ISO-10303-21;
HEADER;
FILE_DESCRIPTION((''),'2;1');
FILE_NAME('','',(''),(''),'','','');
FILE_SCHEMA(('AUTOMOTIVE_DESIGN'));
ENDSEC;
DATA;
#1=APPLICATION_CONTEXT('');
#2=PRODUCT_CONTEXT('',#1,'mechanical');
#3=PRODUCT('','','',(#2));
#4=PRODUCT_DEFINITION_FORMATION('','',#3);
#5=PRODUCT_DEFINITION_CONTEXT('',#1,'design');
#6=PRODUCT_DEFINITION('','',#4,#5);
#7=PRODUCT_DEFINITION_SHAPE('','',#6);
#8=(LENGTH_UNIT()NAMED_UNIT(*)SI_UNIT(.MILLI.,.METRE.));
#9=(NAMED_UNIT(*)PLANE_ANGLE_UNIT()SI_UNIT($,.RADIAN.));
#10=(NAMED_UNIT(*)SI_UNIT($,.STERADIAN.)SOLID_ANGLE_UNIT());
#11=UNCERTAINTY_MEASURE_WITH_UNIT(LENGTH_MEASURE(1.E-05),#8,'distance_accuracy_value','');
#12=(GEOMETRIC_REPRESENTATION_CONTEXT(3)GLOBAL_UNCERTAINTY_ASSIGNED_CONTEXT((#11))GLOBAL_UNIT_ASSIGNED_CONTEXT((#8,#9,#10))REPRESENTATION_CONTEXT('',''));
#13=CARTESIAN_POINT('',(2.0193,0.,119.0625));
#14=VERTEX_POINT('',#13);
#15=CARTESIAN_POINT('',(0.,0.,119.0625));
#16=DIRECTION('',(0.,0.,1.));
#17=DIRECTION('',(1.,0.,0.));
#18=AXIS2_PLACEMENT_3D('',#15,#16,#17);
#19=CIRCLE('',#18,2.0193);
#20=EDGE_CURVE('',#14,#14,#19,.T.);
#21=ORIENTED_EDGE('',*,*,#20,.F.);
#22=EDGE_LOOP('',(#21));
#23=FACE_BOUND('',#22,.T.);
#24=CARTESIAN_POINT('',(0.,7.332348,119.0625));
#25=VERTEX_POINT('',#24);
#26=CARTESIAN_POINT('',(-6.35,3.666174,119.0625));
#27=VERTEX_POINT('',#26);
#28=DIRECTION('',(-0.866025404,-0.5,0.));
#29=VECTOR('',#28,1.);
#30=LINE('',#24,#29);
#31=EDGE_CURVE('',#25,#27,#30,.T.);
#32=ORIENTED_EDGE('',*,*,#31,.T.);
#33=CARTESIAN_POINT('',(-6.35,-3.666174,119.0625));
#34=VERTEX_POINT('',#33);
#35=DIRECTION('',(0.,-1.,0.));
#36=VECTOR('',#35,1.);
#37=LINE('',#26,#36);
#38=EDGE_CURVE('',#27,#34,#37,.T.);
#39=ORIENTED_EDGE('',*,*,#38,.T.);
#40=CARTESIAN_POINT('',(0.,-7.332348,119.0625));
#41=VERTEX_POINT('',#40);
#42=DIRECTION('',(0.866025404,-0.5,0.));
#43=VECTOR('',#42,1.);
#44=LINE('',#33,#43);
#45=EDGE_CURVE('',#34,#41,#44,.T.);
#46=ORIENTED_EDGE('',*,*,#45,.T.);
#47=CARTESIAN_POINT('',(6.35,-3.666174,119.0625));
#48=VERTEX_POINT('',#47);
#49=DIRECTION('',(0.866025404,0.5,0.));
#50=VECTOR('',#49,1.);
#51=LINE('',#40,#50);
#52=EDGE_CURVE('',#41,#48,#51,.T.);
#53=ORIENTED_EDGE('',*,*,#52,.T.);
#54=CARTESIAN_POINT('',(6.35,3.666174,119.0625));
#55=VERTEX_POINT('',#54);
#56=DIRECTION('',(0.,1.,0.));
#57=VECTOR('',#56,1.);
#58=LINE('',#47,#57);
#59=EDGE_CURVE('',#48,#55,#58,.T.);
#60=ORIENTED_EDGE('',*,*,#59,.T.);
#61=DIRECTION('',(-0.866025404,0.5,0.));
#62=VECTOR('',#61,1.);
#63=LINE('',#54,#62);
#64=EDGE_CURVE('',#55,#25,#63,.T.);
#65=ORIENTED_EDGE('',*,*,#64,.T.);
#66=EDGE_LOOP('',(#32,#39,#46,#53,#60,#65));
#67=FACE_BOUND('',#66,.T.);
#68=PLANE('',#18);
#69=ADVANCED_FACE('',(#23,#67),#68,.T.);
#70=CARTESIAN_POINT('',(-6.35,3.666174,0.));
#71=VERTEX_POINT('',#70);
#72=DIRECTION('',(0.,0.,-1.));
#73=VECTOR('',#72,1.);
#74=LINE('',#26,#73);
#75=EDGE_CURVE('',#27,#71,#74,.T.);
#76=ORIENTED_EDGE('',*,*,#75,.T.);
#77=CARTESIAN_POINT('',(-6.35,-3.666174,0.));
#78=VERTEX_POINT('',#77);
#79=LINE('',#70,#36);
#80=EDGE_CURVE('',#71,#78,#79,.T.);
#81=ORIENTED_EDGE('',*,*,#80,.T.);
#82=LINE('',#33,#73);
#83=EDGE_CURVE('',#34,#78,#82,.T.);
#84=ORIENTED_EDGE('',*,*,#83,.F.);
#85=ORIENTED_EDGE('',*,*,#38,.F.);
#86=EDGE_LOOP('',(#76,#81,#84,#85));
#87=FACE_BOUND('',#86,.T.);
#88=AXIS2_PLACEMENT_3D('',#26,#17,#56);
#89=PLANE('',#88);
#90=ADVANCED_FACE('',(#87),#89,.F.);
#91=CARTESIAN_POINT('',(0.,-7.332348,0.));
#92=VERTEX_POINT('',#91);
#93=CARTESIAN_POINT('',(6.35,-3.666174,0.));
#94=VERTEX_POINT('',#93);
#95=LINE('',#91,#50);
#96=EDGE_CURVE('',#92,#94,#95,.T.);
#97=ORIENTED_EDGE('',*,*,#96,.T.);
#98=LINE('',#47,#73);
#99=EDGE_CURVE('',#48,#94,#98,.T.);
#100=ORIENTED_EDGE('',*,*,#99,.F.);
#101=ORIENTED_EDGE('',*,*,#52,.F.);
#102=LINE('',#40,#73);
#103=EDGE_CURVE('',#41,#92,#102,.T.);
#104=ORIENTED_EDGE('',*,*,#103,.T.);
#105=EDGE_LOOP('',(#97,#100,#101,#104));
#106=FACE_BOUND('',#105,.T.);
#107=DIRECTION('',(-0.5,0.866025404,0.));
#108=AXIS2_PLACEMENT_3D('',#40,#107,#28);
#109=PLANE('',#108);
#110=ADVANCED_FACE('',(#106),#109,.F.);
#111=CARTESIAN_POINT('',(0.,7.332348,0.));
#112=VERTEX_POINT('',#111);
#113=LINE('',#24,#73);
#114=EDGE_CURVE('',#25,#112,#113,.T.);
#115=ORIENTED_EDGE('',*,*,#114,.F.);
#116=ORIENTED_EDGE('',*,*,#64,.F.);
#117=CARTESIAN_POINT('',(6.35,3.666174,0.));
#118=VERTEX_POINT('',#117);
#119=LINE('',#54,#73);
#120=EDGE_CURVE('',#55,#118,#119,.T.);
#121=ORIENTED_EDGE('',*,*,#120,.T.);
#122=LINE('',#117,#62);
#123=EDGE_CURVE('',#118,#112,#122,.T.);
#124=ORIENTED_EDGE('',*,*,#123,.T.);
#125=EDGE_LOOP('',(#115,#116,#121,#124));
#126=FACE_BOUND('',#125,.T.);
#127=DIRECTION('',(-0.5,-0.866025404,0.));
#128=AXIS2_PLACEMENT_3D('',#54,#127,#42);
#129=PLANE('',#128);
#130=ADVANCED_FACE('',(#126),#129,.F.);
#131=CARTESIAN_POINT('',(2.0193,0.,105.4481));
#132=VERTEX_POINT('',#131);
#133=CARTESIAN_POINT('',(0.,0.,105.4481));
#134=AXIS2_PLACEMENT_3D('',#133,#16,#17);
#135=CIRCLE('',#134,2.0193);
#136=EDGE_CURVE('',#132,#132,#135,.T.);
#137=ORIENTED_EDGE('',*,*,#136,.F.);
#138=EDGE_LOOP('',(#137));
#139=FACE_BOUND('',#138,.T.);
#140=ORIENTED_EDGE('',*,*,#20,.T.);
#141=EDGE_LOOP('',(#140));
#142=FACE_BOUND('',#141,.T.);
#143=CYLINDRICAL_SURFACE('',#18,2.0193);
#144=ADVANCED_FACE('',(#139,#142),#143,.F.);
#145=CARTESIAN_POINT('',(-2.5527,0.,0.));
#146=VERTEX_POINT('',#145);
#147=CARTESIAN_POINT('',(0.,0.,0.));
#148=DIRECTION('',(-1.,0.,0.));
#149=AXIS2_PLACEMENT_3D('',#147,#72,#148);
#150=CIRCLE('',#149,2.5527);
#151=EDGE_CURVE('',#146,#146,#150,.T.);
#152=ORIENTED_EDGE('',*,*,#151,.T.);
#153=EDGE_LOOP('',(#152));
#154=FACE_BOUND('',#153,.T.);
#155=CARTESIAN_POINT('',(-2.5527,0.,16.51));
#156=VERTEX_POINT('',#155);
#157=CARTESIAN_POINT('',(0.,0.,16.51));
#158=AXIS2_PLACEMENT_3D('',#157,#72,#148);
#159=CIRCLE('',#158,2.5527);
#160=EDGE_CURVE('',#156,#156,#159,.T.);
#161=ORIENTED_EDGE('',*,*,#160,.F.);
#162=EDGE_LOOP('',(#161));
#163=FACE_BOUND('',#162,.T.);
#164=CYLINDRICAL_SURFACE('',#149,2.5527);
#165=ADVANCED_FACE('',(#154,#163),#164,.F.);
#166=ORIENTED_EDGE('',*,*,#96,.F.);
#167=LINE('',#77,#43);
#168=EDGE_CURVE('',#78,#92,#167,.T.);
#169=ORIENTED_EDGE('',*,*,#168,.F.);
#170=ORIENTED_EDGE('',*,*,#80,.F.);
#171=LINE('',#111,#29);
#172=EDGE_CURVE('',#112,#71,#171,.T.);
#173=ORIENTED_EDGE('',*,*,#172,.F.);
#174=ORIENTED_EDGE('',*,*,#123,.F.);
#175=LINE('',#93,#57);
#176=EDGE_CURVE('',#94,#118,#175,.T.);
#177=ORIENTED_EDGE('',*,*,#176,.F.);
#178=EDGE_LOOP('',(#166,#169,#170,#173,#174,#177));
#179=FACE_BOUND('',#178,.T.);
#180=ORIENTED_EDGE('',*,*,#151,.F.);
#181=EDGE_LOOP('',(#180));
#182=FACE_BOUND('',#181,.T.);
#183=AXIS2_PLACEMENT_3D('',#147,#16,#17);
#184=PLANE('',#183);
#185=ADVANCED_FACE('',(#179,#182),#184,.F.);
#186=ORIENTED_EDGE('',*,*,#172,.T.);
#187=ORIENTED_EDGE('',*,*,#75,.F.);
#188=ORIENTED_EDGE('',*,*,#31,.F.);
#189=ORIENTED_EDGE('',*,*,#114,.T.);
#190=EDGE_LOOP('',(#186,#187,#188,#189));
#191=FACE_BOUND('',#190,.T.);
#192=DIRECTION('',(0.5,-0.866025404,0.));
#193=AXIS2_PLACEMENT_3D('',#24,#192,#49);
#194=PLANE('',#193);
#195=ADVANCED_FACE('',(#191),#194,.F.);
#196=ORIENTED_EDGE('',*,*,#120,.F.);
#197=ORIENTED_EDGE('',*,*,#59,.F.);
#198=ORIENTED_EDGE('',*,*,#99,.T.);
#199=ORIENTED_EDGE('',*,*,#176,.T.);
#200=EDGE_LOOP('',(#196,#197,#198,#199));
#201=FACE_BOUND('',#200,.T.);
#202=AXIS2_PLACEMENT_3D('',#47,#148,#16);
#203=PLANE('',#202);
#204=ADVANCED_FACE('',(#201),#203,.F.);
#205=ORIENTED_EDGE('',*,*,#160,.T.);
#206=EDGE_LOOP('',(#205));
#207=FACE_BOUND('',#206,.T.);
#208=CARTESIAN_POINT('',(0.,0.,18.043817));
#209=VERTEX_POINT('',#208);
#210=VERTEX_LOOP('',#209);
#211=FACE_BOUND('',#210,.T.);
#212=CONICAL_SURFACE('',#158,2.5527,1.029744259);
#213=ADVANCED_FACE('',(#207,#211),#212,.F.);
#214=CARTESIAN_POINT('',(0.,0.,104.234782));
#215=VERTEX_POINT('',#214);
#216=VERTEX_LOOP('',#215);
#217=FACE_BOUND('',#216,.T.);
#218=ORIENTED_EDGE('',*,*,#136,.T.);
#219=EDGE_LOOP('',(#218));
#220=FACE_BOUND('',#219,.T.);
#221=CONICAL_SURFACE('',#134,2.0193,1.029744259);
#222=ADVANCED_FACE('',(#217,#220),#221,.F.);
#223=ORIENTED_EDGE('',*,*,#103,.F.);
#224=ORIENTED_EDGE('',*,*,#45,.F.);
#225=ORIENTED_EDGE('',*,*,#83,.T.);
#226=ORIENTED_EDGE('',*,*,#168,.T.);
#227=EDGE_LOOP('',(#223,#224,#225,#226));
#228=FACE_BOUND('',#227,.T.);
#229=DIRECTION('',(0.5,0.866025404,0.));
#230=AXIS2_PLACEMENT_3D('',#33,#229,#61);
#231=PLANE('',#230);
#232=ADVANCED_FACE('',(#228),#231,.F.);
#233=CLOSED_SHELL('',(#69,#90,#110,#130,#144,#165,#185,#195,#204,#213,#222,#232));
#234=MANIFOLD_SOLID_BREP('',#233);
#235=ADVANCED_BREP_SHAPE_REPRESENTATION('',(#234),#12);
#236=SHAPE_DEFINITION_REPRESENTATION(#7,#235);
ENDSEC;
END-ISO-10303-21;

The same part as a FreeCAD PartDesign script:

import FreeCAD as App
import Part
import Sketcher
from FreeCAD import Vector
Q = App.Units.Quantity


def add_polygon(sketch, points):
    """Adds a closed chain of lines whose ends are joined by coincident constraints."""
    first, n = sketch.GeometryCount, len(points)
    for a, b in zip(points, points[1:] + points[:1]):
        sketch.addGeometry(Part.LineSegment(App.Vector(*a, 0), App.Vector(*b, 0)), False)
    for i in range(n):
        sketch.addConstraint(Sketcher.Constraint("Coincident", first + i, 2, first + (i + 1) % n, 1))

doc = App.newDocument("Part")
body = doc.addObject("PartDesign::Body", "Body")

# Sketch on XY plane
sketch1 = doc.addObject("Sketcher::SketchObject", "Sketch")
body.addObject(sketch1)
sketch1.AttachmentSupport = (doc.XY_Plane, [""])
sketch1.MapMode = "FlatFace"
add_polygon(sketch1, [(0, 7.332348), (-6.35, 3.666174), (-6.35, -3.666174), (0, -7.332348), (6.35, -3.666174), (6.35, 3.666174)])  # lines 0-5
sketch1.addConstraint([
    Sketcher.Constraint("Vertical", 1),
    Sketcher.Constraint("Vertical", 4),
    Sketcher.Constraint("Symmetric", 0, 2, 3, 2, -1, 1),
    Sketcher.Constraint("Symmetric", 2, 2, 5, 2, -1, 1),
    Sketcher.Constraint("PointOnObject", 2, 2, -2),
    Sketcher.Constraint("Parallel", 2, 5),
    Sketcher.Constraint("Horizontal", 1, 2, 3, 2),
    Sketcher.Constraint("Angle", 0, Q("-150 deg")),
    Sketcher.Constraint("DistanceX", 1, 2, 3, 2, Q("0.5 in")),
    Sketcher.Constraint("DistanceY", 1, 2, 1, 1, Q("7.332348 mm")),
])
pad1 = doc.addObject("PartDesign::Pad", "Pad")
body.addObject(pad1)
pad1.Profile = sketch1
pad1.Length = Q("4.6875 in")

# Sketch on XY plane
sketch2 = doc.addObject("Sketcher::SketchObject", "Sketch001")
body.addObject(sketch2)
sketch2.AttachmentSupport = (doc.XY_Plane, [""])
sketch2.MapMode = "FlatFace"
sketch2.addGeometry(Part.Circle(Vector(0, 0, 0), Vector(0, 0, 1), 2.5527), False)
sketch2.addConstraint([
    Sketcher.Constraint("Coincident", 0, 3, -1, 1),
    Sketcher.Constraint("Diameter", 0, Q("0.201 in")),
])
doc.recompute()
hole = doc.addObject("PartDesign::Hole", "Hole")
body.addObject(hole)
hole.Profile = sketch2
hole.ThreadType = "None"
hole.Diameter = Q("0.201 in")
hole.DepthType = "Dimension"
hole.Depth = Q("0.65 in")
hole.DrillPoint = "Angled"
hole.DrillPointAngle = 118
hole.Reversed = True

# Sketch on XY plane
sketch3 = doc.addObject("Sketcher::SketchObject", "Sketch002")
body.addObject(sketch3)
sketch3.AttachmentSupport = (doc.XY_Plane, [""])
sketch3.MapMode = "FlatFace"
sketch3.AttachmentOffset = App.Placement(Vector(0, 0, 4.6875 * 25.4), App.Rotation())
sketch3.addGeometry(Part.Circle(Vector(0, 0, 0), Vector(0, 0, 1), 2.0193), False)
sketch3.addConstraint([
    Sketcher.Constraint("Coincident", 0, 3, -1, 1),
    Sketcher.Constraint("Diameter", 0, Q("0.159 in")),
])
doc.recompute()
hole2 = doc.addObject("PartDesign::Hole", "Hole001")
body.addObject(hole2)
hole2.Profile = sketch3
hole2.ThreadType = "None"
hole2.Diameter = Q("0.159 in")
hole2.DepthType = "Dimension"
hole2.Depth = Q("0.536 in")
hole2.DrillPoint = "Angled"
hole2.DrillPointAngle = 118

doc.recompute()
